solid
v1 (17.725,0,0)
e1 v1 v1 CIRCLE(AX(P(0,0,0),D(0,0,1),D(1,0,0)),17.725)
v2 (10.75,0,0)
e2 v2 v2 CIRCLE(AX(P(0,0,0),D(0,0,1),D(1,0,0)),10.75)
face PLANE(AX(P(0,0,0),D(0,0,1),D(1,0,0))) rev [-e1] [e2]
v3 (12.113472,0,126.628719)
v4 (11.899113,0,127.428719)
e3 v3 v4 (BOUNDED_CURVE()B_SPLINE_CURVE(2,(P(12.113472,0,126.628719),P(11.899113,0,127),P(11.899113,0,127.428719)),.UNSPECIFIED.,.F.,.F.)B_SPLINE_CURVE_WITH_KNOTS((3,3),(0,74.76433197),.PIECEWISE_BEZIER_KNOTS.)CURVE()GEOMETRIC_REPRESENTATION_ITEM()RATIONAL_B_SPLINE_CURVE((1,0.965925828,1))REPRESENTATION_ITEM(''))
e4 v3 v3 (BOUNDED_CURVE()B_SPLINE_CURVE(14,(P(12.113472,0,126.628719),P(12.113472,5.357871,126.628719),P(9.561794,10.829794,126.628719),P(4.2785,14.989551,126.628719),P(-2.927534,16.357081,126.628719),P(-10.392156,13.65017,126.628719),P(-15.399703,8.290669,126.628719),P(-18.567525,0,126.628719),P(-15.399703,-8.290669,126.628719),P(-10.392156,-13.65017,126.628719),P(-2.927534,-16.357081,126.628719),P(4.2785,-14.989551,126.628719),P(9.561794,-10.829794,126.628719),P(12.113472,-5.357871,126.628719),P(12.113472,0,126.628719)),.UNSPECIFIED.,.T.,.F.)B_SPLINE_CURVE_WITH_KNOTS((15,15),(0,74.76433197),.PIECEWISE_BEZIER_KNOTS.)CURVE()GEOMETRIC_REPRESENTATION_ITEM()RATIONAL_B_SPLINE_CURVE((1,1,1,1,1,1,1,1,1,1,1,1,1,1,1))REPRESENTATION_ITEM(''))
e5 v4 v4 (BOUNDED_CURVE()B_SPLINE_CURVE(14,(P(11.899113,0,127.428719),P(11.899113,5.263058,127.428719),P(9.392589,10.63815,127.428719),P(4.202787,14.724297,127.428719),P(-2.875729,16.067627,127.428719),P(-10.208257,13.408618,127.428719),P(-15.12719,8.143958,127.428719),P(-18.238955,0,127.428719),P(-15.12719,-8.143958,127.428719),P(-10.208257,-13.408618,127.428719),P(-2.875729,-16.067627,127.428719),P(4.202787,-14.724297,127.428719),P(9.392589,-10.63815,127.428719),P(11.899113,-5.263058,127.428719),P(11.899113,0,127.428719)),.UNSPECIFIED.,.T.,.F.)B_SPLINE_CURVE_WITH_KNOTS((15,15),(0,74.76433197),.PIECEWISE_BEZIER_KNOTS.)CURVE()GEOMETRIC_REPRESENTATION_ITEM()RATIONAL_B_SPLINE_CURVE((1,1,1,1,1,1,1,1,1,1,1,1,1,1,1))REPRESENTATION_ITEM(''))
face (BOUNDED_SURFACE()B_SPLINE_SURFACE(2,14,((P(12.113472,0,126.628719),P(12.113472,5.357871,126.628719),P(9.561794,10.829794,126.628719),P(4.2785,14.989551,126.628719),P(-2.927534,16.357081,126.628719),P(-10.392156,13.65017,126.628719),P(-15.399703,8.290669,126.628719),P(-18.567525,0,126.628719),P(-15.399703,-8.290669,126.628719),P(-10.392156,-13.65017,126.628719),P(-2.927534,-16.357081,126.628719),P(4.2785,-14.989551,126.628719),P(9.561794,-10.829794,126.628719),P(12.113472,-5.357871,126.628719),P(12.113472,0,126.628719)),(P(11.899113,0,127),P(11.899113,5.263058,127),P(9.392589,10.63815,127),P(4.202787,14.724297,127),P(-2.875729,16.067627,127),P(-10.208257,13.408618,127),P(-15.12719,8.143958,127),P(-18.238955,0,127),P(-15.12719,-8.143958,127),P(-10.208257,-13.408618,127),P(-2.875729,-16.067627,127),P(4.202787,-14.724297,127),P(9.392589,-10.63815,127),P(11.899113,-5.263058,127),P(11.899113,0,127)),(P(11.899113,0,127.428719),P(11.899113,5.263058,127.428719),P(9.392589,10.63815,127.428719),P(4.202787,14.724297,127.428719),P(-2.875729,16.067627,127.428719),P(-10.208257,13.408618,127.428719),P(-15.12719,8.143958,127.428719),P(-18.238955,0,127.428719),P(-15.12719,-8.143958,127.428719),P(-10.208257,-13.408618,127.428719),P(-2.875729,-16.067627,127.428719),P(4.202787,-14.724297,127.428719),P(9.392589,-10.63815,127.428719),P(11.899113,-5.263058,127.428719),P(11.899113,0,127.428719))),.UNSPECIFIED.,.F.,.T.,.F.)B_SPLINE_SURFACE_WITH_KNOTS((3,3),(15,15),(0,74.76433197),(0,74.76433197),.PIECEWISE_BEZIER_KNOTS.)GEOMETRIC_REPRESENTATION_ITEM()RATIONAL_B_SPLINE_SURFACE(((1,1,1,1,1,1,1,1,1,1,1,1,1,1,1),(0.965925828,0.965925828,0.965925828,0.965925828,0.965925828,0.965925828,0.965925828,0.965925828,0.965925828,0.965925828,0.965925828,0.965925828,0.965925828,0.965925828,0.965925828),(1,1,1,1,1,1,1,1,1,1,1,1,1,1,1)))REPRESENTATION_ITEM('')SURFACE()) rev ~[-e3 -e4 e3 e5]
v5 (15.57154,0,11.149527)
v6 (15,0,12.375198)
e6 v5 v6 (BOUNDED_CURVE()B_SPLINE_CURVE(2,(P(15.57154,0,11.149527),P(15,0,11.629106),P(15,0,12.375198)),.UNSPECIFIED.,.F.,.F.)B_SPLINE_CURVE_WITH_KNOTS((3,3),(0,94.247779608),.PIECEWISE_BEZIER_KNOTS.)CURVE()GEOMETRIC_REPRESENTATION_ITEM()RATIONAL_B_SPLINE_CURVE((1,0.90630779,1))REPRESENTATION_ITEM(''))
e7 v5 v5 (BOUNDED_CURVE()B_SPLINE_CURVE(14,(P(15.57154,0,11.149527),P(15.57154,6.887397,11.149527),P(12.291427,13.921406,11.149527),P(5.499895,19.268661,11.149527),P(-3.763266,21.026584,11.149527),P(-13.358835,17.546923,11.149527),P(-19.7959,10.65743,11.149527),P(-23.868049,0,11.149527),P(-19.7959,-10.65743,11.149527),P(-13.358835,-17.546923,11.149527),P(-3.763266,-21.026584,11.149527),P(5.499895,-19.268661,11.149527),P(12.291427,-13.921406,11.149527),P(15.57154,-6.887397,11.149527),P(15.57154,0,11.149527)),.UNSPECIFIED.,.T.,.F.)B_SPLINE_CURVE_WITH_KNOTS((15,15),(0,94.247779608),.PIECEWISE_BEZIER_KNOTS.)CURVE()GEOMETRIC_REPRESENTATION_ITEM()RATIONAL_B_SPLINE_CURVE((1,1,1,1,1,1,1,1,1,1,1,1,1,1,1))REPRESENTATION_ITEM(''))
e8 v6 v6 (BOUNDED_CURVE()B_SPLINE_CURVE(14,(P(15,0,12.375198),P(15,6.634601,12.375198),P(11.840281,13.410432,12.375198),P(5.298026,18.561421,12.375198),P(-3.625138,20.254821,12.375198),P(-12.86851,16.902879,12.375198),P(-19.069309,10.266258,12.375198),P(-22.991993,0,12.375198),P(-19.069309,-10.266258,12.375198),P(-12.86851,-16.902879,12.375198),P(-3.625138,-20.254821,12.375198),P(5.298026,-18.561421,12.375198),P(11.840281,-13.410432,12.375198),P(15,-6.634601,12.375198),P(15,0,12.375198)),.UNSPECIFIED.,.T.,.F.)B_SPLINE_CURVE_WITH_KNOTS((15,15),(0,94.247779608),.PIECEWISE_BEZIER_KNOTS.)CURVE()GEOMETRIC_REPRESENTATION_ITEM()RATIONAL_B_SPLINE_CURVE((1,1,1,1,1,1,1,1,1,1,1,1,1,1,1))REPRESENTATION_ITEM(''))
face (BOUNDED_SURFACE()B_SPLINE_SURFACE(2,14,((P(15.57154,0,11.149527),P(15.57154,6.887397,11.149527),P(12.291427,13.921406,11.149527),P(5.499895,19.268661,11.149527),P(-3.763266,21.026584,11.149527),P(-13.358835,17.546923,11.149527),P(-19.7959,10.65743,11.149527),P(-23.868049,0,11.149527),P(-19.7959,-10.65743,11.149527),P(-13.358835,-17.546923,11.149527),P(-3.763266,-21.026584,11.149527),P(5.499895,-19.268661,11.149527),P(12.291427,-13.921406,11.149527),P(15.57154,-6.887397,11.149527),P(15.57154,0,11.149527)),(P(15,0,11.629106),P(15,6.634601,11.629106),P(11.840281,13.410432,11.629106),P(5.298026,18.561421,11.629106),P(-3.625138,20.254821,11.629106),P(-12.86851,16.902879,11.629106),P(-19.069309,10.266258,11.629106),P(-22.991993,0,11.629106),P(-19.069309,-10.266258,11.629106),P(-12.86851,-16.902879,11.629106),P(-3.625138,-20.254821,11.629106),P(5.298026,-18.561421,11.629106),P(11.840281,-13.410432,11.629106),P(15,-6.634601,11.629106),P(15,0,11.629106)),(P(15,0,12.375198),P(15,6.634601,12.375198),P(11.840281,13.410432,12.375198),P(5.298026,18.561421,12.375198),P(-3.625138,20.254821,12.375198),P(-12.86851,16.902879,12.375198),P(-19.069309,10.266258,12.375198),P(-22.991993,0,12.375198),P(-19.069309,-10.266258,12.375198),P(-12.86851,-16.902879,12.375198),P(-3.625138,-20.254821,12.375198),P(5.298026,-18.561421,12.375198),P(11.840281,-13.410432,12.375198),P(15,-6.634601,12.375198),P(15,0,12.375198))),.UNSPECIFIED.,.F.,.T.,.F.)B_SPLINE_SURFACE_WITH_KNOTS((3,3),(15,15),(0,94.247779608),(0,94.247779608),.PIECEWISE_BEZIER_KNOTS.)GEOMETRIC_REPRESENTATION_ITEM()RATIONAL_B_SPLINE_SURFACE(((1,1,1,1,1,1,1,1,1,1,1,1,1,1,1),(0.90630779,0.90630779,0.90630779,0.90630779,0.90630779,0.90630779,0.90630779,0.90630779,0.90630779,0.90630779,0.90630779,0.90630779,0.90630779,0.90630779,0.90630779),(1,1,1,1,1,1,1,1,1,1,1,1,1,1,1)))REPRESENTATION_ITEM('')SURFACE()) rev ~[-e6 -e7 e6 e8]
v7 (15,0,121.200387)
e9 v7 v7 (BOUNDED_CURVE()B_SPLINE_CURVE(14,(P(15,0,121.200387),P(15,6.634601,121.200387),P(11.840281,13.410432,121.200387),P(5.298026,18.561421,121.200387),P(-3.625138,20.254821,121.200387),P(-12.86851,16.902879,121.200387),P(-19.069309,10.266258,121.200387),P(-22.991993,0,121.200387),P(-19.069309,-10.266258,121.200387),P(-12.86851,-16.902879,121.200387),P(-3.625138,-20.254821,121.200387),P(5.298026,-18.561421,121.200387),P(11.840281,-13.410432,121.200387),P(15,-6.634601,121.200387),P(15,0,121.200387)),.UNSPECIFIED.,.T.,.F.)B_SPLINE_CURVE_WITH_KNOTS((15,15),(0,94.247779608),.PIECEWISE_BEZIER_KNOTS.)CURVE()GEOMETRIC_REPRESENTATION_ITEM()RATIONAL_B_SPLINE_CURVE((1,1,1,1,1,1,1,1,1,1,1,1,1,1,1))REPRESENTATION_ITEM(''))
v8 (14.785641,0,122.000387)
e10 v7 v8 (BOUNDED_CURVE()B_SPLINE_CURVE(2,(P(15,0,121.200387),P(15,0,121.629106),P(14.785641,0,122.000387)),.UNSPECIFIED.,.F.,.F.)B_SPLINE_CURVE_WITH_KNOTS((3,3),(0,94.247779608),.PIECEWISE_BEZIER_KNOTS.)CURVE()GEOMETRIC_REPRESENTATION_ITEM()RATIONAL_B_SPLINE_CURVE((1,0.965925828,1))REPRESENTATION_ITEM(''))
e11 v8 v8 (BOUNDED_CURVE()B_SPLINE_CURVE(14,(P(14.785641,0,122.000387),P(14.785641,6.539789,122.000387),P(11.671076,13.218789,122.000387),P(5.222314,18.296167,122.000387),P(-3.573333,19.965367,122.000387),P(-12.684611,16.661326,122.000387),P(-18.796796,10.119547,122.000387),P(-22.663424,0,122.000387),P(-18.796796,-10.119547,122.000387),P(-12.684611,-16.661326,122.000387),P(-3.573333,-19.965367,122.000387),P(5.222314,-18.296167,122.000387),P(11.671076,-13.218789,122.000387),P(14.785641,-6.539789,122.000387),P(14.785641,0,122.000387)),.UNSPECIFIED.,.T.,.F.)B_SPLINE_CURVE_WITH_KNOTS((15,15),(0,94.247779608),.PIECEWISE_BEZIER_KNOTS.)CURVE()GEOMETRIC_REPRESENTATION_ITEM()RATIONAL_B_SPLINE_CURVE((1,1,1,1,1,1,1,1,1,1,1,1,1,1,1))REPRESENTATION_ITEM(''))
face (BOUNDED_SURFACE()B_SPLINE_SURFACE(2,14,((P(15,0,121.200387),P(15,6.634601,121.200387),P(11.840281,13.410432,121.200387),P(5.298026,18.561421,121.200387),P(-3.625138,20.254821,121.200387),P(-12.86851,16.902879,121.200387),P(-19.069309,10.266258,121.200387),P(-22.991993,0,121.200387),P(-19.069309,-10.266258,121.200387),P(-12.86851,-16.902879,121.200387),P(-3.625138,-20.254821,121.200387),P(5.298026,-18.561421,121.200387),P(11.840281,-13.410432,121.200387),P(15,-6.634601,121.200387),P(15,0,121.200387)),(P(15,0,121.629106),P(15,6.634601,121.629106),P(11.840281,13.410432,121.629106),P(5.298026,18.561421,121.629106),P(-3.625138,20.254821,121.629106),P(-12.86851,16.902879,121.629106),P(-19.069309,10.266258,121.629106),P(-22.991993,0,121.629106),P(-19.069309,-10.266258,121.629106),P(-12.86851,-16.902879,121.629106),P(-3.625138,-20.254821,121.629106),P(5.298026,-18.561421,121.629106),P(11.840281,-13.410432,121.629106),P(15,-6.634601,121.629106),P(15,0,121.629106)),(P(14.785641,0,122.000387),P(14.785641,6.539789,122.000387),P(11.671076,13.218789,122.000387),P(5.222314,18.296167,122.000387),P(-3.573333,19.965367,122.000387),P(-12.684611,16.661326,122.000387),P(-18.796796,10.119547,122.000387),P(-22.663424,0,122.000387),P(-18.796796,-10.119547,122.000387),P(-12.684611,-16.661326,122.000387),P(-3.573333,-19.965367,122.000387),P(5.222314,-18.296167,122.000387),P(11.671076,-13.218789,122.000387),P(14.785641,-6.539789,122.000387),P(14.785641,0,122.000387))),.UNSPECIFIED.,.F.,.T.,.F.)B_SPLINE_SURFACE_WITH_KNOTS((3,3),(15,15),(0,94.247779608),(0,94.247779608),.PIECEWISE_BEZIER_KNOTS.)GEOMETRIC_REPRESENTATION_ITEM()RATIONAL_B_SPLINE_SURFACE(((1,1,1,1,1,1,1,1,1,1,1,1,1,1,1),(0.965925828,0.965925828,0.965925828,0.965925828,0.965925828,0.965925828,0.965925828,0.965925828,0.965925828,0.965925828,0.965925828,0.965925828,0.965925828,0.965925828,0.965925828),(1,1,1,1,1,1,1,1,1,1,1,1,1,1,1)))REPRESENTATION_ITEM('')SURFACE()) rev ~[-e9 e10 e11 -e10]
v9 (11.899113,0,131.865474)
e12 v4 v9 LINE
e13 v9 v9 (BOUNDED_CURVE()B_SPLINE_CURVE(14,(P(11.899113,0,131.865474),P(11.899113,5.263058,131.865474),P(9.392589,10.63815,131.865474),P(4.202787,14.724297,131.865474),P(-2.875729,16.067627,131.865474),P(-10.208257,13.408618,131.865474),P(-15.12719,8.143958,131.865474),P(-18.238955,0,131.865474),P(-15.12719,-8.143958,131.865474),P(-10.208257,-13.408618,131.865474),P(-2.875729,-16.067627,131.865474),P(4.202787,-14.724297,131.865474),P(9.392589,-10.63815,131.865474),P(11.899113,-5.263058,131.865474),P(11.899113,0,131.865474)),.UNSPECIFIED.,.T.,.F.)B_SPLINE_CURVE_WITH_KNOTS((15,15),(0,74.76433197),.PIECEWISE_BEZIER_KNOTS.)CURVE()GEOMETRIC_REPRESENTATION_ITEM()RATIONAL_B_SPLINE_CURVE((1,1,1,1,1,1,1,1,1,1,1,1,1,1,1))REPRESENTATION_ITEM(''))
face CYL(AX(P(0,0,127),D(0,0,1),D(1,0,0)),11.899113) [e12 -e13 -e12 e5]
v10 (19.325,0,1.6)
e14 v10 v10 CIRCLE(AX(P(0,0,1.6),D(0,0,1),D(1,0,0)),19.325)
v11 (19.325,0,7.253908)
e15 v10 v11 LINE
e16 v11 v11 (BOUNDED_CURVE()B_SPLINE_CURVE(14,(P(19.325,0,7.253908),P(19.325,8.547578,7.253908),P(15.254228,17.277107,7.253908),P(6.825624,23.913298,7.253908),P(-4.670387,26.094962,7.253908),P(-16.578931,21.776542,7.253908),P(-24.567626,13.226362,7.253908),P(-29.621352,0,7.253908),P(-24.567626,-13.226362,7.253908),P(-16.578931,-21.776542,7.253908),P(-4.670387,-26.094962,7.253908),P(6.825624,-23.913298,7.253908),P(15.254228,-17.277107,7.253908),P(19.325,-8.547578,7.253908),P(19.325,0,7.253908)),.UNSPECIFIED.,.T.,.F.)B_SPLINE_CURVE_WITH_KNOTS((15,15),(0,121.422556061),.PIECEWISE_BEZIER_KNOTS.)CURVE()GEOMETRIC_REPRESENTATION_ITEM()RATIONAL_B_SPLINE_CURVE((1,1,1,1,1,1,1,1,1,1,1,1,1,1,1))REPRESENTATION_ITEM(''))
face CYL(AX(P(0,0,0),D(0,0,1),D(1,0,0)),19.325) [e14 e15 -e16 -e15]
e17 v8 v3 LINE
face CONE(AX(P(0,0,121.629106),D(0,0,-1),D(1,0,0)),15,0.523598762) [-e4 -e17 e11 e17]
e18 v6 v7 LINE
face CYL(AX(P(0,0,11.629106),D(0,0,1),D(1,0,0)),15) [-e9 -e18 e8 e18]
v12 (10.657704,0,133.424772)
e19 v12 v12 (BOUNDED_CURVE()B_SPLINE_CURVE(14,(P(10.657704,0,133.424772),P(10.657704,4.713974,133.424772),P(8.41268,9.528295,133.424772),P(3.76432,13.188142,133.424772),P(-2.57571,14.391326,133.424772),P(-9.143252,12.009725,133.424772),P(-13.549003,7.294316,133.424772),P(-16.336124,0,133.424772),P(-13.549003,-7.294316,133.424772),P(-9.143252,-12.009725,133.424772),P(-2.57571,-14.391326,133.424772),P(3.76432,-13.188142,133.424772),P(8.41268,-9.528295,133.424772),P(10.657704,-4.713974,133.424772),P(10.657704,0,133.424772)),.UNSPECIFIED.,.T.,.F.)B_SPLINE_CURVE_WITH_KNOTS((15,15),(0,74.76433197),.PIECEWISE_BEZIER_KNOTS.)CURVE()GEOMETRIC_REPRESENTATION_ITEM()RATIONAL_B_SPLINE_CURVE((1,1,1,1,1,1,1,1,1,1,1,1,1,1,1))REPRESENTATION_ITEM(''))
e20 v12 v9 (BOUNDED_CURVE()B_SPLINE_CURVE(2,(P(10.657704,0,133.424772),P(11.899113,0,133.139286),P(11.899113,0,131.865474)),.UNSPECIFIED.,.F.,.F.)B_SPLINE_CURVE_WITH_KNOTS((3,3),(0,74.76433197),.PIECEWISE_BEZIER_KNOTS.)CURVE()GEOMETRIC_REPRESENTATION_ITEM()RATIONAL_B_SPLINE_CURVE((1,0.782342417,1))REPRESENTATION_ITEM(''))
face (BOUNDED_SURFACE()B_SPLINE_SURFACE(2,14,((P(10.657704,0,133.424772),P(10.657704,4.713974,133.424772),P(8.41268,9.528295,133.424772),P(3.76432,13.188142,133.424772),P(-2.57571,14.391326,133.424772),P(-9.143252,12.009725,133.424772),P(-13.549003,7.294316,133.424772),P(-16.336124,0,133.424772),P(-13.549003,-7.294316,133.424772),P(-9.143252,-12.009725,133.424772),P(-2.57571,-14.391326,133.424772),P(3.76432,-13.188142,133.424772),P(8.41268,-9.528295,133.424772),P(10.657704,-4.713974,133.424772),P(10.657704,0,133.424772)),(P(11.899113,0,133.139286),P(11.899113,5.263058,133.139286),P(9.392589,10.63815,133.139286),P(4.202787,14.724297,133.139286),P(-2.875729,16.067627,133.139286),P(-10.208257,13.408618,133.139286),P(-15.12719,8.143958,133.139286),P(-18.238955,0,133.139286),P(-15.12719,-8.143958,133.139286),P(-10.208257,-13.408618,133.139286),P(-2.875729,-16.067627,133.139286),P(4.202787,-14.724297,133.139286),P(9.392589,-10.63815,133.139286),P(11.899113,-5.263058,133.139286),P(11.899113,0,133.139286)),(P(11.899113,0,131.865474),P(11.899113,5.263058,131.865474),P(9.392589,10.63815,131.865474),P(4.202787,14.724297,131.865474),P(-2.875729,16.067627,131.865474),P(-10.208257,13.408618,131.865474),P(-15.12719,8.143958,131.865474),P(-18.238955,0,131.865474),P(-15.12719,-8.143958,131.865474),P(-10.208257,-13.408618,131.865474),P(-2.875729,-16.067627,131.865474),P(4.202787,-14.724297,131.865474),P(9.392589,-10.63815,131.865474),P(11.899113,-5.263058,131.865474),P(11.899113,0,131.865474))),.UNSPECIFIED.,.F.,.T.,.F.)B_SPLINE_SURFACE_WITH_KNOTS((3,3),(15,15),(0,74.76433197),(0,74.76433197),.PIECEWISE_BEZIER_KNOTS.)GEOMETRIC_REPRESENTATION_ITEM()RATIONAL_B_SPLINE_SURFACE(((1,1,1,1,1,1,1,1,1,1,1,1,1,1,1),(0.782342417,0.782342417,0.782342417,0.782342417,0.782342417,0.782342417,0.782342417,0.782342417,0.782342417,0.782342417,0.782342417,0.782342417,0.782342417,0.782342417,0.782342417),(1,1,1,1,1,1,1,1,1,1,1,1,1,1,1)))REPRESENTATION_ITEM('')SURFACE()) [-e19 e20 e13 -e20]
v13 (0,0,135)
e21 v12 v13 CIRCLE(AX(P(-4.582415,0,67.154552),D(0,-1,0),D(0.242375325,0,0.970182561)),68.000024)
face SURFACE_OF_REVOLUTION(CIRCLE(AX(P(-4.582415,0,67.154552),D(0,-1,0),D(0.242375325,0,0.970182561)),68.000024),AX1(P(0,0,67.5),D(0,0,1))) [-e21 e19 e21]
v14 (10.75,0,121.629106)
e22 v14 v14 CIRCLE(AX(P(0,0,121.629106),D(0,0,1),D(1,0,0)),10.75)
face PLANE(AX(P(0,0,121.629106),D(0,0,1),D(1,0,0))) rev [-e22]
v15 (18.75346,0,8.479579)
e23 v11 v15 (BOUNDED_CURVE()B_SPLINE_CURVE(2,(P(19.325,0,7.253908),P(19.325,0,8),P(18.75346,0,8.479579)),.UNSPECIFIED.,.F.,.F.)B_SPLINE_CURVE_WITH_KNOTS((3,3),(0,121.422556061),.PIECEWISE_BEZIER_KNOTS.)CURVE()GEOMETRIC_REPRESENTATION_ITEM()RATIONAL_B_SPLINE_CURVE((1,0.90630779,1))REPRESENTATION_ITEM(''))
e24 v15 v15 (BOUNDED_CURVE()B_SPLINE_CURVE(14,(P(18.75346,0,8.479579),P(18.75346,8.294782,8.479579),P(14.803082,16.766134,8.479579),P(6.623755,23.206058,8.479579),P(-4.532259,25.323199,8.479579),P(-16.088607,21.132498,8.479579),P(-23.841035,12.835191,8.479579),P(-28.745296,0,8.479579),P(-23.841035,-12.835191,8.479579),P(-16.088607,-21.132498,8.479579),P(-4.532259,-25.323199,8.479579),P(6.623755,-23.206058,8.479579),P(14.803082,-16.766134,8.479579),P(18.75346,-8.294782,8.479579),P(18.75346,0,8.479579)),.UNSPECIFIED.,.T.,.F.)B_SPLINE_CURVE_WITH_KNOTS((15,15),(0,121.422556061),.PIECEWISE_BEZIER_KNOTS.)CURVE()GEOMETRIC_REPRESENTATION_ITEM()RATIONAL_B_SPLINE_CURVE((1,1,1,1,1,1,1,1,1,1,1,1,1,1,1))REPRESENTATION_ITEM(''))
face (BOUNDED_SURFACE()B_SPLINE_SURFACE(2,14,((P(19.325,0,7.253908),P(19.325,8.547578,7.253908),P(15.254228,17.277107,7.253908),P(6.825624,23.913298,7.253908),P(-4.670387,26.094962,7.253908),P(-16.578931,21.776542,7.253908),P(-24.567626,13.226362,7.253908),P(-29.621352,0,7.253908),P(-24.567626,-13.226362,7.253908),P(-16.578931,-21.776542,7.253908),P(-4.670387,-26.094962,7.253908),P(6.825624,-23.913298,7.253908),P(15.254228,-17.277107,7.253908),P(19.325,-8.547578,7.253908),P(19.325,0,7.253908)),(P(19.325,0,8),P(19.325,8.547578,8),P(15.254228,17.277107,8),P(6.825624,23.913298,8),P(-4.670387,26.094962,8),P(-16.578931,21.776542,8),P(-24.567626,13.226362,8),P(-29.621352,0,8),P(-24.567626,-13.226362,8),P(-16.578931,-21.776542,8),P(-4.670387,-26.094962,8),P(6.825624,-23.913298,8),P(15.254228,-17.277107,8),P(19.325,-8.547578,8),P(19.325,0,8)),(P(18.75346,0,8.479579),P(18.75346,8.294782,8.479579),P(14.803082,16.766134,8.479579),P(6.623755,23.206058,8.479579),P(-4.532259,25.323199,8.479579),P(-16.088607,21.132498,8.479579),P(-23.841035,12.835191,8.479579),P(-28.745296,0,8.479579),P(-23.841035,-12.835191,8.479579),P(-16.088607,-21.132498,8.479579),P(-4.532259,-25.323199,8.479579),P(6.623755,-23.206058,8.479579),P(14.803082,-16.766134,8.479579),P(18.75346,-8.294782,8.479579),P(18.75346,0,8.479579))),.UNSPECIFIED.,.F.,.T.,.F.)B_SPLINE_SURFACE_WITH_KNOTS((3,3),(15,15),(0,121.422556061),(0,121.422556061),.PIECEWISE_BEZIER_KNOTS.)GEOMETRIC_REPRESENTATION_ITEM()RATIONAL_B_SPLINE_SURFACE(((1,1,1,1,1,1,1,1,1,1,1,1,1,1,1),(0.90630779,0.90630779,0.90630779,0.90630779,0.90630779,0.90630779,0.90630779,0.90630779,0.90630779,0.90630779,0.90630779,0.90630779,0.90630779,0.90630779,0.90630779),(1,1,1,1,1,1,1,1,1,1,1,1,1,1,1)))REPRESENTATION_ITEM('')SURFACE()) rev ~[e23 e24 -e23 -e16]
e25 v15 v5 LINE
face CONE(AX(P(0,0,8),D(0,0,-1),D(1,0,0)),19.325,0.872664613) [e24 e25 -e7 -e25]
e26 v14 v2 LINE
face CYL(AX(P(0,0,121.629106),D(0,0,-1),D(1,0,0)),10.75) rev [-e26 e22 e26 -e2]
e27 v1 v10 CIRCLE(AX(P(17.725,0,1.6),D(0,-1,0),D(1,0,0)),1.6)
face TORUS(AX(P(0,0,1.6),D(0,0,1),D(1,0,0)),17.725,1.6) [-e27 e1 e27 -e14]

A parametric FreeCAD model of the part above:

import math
import FreeCAD as App
import Part
import Sketcher

V = App.Vector
Q = App.Units.Quantity


def edges_at(feature, points):
    """Names of the edges that pass closest to the given points."""
    edges = feature.Shape.Edges
    near = lambda p: min(range(len(edges)), key=lambda i: edges[i].distToShape(Part.Vertex(*p))[0])
    return sorted({f"Edge{near(p) + 1}" for p in points})

doc = App.newDocument("Part")
body = doc.addObject("PartDesign::Body", "Body")

# Sketch on XZ plane
sketch1 = doc.addObject("Sketcher::SketchObject", "Sketch")
body.addObject(sketch1)
sketch1.AttachmentSupport = (doc.XZ_Plane, [""])
sketch1.MapMode = "FlatFace"
sketch1.addGeometry(Part.ArcOfCircle(Part.Circle(V(-4.582415, 67.154552, 0), V(0, 0, 1), 68.000024), math.radians(75.973224), math.radians(86.135999)), False)
sketch1.addGeometry(Part.LineSegment(V(0, 135, 0), V(0, 121.629106, 0)), False)
sketch1.addGeometry(Part.LineSegment(V(0, 121.629106, 0), V(10.75, 121.629106, 0)), False)
sketch1.addGeometry(Part.LineSegment(V(10.75, 121.629106, 0), V(10.75, 0, 0)), False)
sketch1.addGeometry(Part.LineSegment(V(10.75, 0, 0), V(19.325, 0, 0)), False)
sketch1.addGeometry(Part.LineSegment(V(19.325, 0, 0), V(19.325, 8, 0)), False)
sketch1.addGeometry(Part.LineSegment(V(19.325, 8, 0), V(15, 11.629106, 0)), False)
sketch1.addGeometry(Part.LineSegment(V(15, 11.629106, 0), V(15, 121.629106, 0)), False)
sketch1.addGeometry(Part.LineSegment(V(15, 121.629106, 0), V(11.899113, 127, 0)), False)
sketch1.addGeometry(Part.LineSegment(V(11.899113, 127, 0), V(11.899113, 133.12699, 0)), False)
sketch1.addConstraint(Sketcher.Constraint("Coincident", 0, 2, 1, 1))
sketch1.addConstraint(Sketcher.Constraint("Coincident", 1, 2, 2, 1))
sketch1.addConstraint(Sketcher.Constraint("Coincident", 2, 2, 3, 1))
sketch1.addConstraint(Sketcher.Constraint("Coincident", 3, 2, 4, 1))
sketch1.addConstraint(Sketcher.Constraint("Coincident", 4, 2, 5, 1))
sketch1.addConstraint(Sketcher.Constraint("Coincident", 5, 2, 6, 1))
sketch1.addConstraint(Sketcher.Constraint("Coincident", 6, 2, 7, 1))
sketch1.addConstraint(Sketcher.Constraint("Coincident", 7, 2, 8, 1))
sketch1.addConstraint(Sketcher.Constraint("Coincident", 8, 2, 9, 1))
sketch1.addConstraint(Sketcher.Constraint("Coincident", 9, 2, 0, 1))
sketch1.addConstraint(Sketcher.Constraint("Vertical", 1))
sketch1.addConstraint(Sketcher.Constraint("Horizontal", 2))
sketch1.addConstraint(Sketcher.Constraint("Vertical", 3))
sketch1.addConstraint(Sketcher.Constraint("Horizontal", 4))
sketch1.addConstraint(Sketcher.Constraint("Vertical", 5))
sketch1.addConstraint(Sketcher.Constraint("Vertical", 7))
sketch1.addConstraint(Sketcher.Constraint("Vertical", 9))
sketch1.addConstraint(Sketcher.Constraint("PointOnObject", 0, 2, -2))
sketch1.addConstraint(Sketcher.Constraint("PointOnObject", 3, 2, -1))
sketch1.addConstraint(Sketcher.Constraint("Horizontal", 2, 2, 7, 2))
sketch1.addConstraint(Sketcher.Constraint("DistanceY", 5, 1, 5, 2, 8.0))
sketch1.addConstraint(Sketcher.Constraint("DistanceY", 7, 1, 7, 2, 110.0))
sketch1.addConstraint(Sketcher.Constraint("Angle", 6, Q("139.999999 deg")))
sketch1.addConstraint(Sketcher.Constraint("Angle", 8, Q("119.999999 deg")))
sketch1.addConstraint(Sketcher.Constraint("DistanceY", -1, 1, 0, 2, 135.0))
sketch1.addConstraint(Sketcher.Constraint("DistanceX", -1, 1, 6, 2, 15.0))
sketch1.addConstraint(Sketcher.Constraint("DistanceY", -1, 1, 8, 2, 127.0))
sketch1.addConstraint(Sketcher.Constraint("DistanceX", 2, 1, 2, 2, 10.75))
sketch1.addConstraint(Sketcher.Constraint("DistanceX", 4, 1, 4, 2, 8.575))
sketch1.addConstraint(Sketcher.Constraint("Radius", 0, 68.000024))
sketch1.addConstraint(Sketcher.Constraint("DistanceY", 9, 1, 9, 2, 6.12699))
revolution = doc.addObject("PartDesign::Revolution", "Revolution")
body.addObject(revolution)
revolution.Profile = sketch1
revolution.ReferenceAxis = (sketch1, ["V_Axis"])
revolution.Angle = 360
doc.recompute()

fillet = doc.addObject("PartDesign::Fillet", "Fillet")
body.addObject(fillet)
fillet.Base = (revolution, edges_at(revolution, [
    (-11.899, 0, 133.127),
    (-11.899, 0, 127),
    (-15, 0, 121.629),
    (-15, 0, 11.629),
    (-19.325, 0, 8),
    (-19.325, 0, 0),
]))
fillet.Radius = 1.6

doc.recompute()
